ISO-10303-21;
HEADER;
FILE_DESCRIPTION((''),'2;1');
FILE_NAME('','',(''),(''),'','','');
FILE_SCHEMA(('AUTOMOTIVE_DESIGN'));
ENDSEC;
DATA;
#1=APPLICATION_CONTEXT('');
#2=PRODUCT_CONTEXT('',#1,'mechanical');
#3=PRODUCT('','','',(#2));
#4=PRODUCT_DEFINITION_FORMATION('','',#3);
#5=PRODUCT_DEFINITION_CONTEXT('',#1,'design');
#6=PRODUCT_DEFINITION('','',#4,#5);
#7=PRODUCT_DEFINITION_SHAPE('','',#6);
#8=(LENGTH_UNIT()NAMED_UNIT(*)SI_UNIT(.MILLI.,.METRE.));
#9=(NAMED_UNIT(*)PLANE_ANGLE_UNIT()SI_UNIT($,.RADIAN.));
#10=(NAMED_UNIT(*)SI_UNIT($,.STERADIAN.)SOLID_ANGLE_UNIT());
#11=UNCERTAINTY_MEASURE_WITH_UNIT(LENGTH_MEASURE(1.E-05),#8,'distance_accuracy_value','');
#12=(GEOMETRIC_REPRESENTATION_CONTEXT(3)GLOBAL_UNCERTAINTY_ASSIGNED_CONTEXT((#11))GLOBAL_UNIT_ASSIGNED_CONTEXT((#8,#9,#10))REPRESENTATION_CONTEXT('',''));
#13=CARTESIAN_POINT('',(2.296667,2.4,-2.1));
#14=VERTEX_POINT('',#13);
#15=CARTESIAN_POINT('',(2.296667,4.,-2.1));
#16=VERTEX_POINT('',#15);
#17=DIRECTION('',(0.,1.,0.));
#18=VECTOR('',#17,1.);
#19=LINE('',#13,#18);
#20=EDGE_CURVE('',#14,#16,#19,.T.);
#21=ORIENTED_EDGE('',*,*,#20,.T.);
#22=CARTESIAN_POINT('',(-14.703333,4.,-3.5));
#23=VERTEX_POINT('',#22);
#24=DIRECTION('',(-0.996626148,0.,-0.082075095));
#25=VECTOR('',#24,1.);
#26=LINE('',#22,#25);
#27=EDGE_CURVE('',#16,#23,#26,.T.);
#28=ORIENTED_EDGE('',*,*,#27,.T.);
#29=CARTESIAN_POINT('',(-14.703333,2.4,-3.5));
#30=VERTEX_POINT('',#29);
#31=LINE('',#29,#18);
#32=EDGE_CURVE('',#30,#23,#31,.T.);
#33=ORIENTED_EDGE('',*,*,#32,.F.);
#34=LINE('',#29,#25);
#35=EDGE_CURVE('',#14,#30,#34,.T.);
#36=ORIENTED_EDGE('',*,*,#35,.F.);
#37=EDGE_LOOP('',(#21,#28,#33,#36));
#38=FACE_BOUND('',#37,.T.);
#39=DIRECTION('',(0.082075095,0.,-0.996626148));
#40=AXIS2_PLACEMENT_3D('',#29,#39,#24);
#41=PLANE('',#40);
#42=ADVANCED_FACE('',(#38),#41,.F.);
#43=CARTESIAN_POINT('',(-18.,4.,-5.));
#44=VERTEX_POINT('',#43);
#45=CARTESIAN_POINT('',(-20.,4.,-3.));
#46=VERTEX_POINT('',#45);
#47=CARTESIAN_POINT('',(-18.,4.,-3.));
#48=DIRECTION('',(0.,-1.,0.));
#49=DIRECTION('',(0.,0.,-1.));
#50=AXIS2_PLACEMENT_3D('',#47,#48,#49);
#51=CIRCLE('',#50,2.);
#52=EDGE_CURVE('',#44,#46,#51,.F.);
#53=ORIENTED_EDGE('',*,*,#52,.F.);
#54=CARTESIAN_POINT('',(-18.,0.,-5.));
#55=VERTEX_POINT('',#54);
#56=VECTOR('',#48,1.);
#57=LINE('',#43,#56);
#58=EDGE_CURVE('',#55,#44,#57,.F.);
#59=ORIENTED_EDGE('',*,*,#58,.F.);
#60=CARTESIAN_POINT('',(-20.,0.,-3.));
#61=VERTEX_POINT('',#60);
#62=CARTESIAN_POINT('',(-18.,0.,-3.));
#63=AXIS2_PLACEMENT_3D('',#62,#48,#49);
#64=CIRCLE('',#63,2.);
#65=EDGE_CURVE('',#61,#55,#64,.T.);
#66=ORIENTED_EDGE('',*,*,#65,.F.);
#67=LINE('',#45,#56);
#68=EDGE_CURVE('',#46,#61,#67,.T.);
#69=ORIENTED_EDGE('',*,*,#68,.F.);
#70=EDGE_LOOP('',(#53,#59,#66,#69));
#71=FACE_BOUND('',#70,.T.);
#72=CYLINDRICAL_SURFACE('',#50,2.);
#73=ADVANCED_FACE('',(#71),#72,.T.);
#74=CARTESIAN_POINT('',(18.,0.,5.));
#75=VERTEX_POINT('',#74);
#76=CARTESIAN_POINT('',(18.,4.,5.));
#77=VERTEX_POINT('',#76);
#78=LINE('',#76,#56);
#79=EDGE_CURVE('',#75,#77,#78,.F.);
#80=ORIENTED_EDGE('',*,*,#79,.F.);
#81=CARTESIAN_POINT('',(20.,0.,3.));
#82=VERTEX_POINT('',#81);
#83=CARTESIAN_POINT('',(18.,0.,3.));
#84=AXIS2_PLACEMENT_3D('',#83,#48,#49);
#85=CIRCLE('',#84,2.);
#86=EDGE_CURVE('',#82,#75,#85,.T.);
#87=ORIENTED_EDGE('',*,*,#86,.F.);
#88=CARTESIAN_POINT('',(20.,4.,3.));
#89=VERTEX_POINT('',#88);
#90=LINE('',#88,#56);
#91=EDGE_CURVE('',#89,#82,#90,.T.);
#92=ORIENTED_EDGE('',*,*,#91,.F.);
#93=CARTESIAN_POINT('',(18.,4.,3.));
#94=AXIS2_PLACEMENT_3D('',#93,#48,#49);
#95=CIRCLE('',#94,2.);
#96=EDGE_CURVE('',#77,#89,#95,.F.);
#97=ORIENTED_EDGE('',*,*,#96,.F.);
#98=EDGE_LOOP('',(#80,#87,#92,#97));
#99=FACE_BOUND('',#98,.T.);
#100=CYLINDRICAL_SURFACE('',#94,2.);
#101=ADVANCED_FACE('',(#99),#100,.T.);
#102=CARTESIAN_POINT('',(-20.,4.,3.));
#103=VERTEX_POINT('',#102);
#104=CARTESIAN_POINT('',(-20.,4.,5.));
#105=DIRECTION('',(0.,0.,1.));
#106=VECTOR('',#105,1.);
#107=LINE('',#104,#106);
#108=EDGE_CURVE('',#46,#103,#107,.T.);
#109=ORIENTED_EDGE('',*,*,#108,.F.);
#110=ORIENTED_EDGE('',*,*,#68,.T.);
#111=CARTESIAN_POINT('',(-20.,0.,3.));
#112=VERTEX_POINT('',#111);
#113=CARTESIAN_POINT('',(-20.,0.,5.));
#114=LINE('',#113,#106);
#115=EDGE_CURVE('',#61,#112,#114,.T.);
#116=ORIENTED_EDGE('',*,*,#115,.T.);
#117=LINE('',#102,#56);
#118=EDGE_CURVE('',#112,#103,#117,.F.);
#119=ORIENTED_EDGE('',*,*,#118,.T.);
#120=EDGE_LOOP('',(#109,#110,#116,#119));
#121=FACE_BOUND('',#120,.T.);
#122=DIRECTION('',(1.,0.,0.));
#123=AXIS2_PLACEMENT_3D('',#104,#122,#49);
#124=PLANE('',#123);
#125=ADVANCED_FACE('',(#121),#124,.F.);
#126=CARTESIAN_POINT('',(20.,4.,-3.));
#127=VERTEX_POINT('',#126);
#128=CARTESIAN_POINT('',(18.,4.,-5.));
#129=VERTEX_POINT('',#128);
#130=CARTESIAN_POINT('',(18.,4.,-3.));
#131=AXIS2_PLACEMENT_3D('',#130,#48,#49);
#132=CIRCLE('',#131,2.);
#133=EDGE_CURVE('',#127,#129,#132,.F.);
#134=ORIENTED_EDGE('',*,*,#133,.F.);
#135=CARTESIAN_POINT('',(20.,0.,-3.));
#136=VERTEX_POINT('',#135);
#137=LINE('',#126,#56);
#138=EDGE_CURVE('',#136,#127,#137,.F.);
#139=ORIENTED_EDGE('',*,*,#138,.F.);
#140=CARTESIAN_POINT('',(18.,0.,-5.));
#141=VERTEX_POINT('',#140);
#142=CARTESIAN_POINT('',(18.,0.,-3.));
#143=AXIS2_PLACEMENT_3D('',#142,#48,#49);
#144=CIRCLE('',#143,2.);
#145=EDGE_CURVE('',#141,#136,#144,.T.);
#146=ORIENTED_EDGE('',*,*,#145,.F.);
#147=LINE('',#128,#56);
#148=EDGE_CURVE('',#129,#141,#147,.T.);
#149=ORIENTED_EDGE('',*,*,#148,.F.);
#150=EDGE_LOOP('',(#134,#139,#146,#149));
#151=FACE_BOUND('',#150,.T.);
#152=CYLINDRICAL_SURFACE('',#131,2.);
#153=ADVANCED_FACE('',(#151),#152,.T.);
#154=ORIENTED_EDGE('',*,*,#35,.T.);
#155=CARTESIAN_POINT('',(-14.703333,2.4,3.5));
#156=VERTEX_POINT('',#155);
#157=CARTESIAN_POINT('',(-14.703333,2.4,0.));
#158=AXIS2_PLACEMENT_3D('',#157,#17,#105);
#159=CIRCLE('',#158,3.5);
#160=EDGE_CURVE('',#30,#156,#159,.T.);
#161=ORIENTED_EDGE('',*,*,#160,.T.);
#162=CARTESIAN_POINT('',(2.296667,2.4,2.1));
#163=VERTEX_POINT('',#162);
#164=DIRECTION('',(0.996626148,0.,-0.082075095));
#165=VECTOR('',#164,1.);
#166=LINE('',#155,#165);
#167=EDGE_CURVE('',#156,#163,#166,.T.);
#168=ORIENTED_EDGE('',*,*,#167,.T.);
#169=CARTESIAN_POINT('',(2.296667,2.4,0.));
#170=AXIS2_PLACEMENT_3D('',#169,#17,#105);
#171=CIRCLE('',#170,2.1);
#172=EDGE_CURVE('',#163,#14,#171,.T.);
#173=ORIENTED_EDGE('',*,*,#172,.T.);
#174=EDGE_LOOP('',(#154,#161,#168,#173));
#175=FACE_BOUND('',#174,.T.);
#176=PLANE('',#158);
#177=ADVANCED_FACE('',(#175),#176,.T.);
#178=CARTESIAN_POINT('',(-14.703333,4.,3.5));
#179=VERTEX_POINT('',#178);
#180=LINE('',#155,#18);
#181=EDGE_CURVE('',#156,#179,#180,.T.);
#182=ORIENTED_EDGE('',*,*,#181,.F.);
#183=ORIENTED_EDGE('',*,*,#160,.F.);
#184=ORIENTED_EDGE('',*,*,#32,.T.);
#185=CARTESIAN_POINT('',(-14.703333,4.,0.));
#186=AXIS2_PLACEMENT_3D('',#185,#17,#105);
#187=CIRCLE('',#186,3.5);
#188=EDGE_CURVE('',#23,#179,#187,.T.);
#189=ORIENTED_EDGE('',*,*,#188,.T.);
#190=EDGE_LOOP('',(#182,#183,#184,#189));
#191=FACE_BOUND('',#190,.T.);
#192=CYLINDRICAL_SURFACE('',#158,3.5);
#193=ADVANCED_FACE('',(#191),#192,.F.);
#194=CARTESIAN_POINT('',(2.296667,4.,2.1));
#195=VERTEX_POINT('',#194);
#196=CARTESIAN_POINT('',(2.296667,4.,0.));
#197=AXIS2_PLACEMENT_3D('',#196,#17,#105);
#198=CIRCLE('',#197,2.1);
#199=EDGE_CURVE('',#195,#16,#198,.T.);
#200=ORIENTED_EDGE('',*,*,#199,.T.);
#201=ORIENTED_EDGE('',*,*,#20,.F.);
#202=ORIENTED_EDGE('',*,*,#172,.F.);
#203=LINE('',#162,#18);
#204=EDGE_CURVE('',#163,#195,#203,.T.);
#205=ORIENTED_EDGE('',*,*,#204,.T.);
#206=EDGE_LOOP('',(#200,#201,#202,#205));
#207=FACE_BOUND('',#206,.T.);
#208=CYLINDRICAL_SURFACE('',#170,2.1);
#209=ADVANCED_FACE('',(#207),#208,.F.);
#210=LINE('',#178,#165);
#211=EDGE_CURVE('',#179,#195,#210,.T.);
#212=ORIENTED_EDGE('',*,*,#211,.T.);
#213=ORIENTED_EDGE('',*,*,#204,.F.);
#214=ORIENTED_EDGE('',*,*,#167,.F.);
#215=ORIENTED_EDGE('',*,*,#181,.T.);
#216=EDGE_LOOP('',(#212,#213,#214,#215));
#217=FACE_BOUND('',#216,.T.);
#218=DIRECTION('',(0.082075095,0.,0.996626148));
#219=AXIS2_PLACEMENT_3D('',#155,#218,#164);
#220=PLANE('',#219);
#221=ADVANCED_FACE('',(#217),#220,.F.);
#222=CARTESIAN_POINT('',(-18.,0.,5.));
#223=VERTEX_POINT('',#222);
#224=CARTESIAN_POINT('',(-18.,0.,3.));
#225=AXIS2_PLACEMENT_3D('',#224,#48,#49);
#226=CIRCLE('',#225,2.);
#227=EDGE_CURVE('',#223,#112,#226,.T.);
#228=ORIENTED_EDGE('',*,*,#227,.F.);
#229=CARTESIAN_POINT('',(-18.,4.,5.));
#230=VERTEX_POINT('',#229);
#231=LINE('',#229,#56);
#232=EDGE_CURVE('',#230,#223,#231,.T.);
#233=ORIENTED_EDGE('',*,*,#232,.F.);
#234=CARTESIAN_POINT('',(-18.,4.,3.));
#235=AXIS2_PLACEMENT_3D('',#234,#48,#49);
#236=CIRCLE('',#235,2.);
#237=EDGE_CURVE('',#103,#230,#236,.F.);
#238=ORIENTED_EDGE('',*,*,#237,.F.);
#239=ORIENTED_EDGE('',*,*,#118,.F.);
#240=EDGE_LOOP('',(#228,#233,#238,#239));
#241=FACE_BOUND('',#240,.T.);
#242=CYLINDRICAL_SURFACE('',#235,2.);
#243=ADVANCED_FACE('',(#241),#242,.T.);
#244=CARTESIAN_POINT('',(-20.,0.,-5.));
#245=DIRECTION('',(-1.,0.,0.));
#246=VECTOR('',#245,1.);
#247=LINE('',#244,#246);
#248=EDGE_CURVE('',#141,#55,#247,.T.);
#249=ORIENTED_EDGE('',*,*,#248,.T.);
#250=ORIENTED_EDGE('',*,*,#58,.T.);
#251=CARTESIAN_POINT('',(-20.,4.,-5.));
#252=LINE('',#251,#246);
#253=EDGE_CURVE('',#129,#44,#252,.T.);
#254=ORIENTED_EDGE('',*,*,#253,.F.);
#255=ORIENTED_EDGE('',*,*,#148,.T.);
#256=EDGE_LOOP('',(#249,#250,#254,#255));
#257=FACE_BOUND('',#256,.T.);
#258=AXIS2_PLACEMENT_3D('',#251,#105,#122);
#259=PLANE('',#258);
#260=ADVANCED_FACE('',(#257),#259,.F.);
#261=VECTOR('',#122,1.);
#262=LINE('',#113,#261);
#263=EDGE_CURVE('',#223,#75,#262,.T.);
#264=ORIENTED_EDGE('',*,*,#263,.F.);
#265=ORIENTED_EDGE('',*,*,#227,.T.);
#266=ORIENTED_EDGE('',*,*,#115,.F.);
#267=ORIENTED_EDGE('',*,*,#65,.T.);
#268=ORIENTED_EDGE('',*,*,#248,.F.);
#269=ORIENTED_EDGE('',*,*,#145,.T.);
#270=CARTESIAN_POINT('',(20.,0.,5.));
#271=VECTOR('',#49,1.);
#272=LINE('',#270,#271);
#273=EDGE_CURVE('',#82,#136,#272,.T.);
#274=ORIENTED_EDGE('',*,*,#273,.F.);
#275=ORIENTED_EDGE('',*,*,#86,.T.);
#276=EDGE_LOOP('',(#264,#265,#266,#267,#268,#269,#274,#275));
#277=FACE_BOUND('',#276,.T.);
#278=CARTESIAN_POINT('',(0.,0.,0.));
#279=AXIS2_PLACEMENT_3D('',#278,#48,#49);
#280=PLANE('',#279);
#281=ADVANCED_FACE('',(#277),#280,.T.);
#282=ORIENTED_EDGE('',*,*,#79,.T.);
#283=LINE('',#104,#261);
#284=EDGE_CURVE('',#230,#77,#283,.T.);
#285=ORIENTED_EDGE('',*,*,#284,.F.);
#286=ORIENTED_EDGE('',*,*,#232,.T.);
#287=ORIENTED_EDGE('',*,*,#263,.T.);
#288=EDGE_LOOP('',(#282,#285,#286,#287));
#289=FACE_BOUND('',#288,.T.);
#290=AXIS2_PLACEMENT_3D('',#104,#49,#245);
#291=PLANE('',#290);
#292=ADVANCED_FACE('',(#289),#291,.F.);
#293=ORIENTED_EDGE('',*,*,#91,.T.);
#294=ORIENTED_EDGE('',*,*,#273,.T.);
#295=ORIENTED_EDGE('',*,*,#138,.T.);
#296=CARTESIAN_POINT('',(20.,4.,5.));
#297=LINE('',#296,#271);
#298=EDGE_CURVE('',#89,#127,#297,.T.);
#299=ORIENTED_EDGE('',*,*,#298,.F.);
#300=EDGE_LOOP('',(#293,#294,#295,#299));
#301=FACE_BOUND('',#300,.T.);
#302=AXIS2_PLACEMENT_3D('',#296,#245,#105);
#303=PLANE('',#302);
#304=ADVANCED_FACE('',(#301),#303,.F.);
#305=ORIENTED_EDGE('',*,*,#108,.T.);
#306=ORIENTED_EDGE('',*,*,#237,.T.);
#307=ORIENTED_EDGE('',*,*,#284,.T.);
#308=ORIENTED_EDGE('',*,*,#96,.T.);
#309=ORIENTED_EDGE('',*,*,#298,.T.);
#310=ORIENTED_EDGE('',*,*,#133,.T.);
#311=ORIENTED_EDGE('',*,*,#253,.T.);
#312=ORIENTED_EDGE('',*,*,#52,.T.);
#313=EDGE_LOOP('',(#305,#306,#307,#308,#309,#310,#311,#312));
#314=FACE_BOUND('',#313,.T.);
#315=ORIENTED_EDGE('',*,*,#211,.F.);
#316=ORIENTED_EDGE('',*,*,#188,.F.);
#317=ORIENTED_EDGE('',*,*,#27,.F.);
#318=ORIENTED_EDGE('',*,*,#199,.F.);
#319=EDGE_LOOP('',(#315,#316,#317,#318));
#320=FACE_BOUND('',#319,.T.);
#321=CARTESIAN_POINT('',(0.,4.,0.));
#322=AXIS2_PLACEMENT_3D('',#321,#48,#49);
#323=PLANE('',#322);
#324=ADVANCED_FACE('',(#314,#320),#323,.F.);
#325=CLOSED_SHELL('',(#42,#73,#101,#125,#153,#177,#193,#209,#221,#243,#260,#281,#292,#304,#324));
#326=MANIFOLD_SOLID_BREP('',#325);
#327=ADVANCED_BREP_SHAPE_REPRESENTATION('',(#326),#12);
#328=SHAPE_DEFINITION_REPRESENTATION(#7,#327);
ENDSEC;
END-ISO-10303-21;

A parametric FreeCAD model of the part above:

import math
import FreeCAD as App
import Part
import Sketcher

V = App.Vector
Q = App.Units.Quantity


def edges_at(feature, points):
    """Names of the edges that pass closest to the given points."""
    edges = feature.Shape.Edges
    near = lambda p: min(range(len(edges)), key=lambda i: edges[i].distToShape(Part.Vertex(*p))[0])
    return sorted({f"Edge{near(p) + 1}" for p in points})


def add_polygon(sketch, points):
    """Adds a closed chain of lines whose ends are joined by coincident constraints."""
    first, n = sketch.GeometryCount, len(points)
    for a, b in zip(points, points[1:] + points[:1]):
        sketch.addGeometry(Part.LineSegment(App.Vector(*a, 0), App.Vector(*b, 0)), False)
    for i in range(n):
        sketch.addConstraint(Sketcher.Constraint("Coincident", first + i, 2, first + (i + 1) % n, 1))

doc = App.newDocument("Part")
body = doc.addObject("PartDesign::Body", "Body")

# Sketch on XZ plane
sketch1 = body.newObject("Sketcher::SketchObject", "Sketch")
sketch1.AttachmentSupport = (doc.getObject("XZ_Plane"), [""])
sketch1.MapMode = "FlatFace"
add_polygon(sketch1, [(-20, -5), (-20, 5), (20, 5), (20, -5)])  # lines 0-3
sketch1.addConstraint(Sketcher.Constraint("Vertical", 0))
sketch1.addConstraint(Sketcher.Constraint("Horizontal", 1))
sketch1.addConstraint(Sketcher.Constraint("Vertical", 2))
sketch1.addConstraint(Sketcher.Constraint("Horizontal", 3))
sketch1.addConstraint(Sketcher.Constraint("Symmetric", 0, 2, 2, 2, -1, 1))
sketch1.addConstraint(Sketcher.Constraint("DistanceX", 1, 1, 1, 2, Q("40 mm")))
sketch1.addConstraint(Sketcher.Constraint("DistanceY", 0, 1, 0, 2, Q("10 mm")))
pad1 = body.newObject("PartDesign::Pad", "Pad")
pad1.Profile = sketch1
pad1.Length = 4
pad1.Reversed = True

# Sketch on XZ plane
sketch2 = body.newObject("Sketcher::SketchObject", "Sketch001")
sketch2.AttachmentSupport = (doc.getObject("XZ_Plane"), [""])
sketch2.MapMode = "FlatFace"
sketch2.AttachmentOffset = App.Placement(V(0, 0, -4), App.Rotation())
sketch2.addGeometry(Part.LineSegment(V(-14.7, 3.5, 0), V(2.3, 2.1, 0)), False)
sketch2.addGeometry(Part.ArcOfCircle(Part.Circle(V(2.3, 0, 0), V(0, 0, 1), 2.1), math.radians(-90), math.radians(90)), False)
sketch2.addGeometry(Part.LineSegment(V(2.3, -2.1, 0), V(-14.7, -3.5, 0)), False)
sketch2.addGeometry(Part.ArcOfCircle(Part.Circle(V(-14.7, 0, 0), V(0, 0, 1), 3.5), math.radians(90), math.radians(270)), False)
sketch2.addConstraint(Sketcher.Constraint("Coincident", 0, 2, 1, 2))
sketch2.addConstraint(Sketcher.Constraint("Coincident", 1, 1, 2, 1))
sketch2.addConstraint(Sketcher.Constraint("Coincident", 2, 2, 3, 2))
sketch2.addConstraint(Sketcher.Constraint("Coincident", 3, 1, 0, 1))
sketch2.addConstraint(Sketcher.Constraint("Symmetric", 0, 2, 1, 1, -1))
sketch2.addConstraint(Sketcher.Constraint("Symmetric", 2, 2, 3, 1, -1))
sketch2.addConstraint(Sketcher.Constraint("Vertical", 1, 3, 0, 2))
sketch2.addConstraint(Sketcher.Constraint("Vertical", 3, 3, 2, 2))
sketch2.addConstraint(Sketcher.Constraint("Radius", 1, Q("2.1 mm")))
sketch2.addConstraint(Sketcher.Constraint("Radius", 3, Q("3.5 mm")))
sketch2.addConstraint(Sketcher.Constraint("DistanceX", 3, 3, 1, 3, Q("17 mm")))
sketch2.addConstraint(Sketcher.Constraint("DistanceX", -1, 1, 1, 3, Q("2.296667 mm")))
pocket1 = body.newObject("PartDesign::Pocket", "Pocket")
pocket1.Profile = sketch2
pocket1.Length = 1.6
pocket1.Reversed = True
doc.recompute()

fillet = body.newObject("PartDesign::Fillet", "Fillet")
fillet.Base = (pocket1, edges_at(pocket1, [
    (20, 2, 5),
    (-20, 2, 5),
    (-20, 2, -5),
    (20, 2, -5),
]))
fillet.Radius = 2

doc.recompute()
